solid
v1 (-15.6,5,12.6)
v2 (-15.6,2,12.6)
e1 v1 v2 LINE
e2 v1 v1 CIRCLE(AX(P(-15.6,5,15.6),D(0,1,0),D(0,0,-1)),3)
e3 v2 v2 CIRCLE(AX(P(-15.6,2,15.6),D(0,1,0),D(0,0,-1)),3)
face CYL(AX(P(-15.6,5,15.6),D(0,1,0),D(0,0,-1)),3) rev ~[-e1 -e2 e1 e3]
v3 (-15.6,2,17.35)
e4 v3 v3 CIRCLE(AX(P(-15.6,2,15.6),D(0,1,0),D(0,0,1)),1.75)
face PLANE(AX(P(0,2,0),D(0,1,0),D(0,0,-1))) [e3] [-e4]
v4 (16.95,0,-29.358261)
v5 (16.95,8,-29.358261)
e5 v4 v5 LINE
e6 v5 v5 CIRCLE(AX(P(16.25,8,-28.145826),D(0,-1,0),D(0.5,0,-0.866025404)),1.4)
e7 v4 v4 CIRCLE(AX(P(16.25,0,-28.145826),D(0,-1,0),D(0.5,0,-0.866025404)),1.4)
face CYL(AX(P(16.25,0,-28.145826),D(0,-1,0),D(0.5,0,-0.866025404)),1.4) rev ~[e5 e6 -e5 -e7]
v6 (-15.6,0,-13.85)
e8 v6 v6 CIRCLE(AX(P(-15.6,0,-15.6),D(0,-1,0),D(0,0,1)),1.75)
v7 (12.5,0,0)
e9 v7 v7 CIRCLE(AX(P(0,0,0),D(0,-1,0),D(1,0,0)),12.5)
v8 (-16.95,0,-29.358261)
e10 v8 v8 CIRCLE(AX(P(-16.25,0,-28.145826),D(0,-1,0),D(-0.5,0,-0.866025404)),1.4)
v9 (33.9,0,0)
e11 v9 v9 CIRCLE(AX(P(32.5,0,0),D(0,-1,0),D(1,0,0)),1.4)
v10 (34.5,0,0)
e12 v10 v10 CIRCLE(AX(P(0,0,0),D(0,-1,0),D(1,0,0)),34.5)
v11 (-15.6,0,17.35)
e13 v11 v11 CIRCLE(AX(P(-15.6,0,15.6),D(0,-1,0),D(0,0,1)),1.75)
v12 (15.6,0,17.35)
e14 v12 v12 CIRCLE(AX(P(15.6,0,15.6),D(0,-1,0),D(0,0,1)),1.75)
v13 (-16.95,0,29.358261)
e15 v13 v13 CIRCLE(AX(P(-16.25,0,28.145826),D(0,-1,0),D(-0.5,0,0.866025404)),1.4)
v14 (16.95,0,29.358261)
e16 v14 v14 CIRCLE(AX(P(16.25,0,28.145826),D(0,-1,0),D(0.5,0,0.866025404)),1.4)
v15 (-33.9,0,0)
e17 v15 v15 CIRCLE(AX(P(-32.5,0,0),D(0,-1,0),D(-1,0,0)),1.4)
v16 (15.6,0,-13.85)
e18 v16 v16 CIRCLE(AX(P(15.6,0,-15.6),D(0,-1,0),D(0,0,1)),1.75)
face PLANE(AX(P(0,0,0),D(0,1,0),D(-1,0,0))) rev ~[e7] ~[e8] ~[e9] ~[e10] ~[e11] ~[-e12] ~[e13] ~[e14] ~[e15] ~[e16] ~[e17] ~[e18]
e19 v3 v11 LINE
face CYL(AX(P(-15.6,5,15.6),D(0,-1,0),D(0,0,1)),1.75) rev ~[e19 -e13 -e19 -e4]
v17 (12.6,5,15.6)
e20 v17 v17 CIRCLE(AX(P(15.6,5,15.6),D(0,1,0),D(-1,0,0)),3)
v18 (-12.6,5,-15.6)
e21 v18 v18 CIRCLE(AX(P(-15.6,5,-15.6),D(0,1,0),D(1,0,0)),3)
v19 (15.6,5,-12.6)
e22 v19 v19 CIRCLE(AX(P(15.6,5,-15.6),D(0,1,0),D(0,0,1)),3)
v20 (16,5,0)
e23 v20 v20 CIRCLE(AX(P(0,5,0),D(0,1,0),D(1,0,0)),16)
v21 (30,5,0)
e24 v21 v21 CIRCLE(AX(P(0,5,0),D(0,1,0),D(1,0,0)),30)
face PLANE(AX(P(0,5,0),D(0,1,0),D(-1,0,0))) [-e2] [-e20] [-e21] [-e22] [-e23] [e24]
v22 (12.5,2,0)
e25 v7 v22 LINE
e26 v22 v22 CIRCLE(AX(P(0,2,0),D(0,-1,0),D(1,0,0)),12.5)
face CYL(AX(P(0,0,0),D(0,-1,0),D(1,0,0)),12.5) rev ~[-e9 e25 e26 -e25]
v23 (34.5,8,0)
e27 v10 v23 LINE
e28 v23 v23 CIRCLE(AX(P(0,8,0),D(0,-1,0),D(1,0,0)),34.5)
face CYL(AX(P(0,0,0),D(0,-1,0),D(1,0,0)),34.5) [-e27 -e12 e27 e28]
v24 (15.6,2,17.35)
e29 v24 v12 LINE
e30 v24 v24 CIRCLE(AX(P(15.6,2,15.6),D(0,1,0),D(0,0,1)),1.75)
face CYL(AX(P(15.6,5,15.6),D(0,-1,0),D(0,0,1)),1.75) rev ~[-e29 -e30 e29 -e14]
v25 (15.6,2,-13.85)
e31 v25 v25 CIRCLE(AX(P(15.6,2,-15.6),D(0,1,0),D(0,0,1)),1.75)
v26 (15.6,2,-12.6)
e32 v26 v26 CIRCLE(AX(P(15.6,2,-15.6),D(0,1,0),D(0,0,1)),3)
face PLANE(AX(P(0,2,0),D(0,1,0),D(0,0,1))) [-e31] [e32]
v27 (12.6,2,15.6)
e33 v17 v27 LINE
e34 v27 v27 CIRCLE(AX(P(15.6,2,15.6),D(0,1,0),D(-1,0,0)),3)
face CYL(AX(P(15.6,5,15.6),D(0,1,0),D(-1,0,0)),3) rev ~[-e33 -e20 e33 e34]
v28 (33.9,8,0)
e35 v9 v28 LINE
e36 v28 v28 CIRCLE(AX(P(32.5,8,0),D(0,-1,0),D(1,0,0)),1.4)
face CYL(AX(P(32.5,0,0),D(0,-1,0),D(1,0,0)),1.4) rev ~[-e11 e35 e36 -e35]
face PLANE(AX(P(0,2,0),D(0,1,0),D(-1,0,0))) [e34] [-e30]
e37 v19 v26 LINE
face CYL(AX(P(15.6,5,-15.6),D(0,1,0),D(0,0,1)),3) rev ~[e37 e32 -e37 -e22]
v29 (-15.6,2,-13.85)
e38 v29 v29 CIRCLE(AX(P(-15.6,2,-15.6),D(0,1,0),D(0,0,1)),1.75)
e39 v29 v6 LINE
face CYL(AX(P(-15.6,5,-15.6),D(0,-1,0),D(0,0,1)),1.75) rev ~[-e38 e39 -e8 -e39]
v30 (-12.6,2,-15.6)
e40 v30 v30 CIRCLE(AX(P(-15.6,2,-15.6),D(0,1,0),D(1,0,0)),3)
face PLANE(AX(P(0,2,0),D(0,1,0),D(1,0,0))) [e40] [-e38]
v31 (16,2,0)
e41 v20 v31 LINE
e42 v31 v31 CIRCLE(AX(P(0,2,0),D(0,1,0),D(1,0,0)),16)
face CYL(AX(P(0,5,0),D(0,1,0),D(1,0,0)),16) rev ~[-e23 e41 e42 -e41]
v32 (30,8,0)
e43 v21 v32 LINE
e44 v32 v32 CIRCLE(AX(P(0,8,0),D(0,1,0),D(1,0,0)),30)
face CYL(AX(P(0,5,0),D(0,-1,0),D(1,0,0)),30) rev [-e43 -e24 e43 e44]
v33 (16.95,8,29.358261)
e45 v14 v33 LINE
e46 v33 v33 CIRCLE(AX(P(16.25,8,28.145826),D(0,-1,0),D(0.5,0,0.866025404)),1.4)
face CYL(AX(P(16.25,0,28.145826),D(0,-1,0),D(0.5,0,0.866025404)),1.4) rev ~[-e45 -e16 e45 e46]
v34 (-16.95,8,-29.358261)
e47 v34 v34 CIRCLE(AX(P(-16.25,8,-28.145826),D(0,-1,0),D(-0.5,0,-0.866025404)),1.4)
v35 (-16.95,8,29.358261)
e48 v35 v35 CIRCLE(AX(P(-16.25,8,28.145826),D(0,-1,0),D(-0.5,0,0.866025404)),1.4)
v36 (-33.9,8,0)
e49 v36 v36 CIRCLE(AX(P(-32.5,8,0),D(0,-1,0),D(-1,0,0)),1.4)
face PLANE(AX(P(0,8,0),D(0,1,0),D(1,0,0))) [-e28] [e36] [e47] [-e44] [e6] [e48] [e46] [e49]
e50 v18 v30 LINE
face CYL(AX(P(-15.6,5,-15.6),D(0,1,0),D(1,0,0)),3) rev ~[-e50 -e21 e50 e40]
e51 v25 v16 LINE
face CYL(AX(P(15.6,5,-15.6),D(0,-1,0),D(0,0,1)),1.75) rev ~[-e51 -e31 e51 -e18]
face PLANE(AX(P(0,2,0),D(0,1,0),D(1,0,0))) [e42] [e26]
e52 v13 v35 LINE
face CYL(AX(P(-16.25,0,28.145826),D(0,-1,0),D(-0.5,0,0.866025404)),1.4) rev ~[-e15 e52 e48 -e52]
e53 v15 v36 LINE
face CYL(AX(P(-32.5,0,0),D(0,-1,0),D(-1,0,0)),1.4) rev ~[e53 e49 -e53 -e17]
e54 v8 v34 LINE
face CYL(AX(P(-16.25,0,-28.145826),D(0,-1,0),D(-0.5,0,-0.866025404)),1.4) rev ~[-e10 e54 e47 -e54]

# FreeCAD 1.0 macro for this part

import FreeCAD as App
import Part
import Sketcher
from FreeCAD import Vector
Q = App.Units.Quantity

doc = App.newDocument("Part")
params = doc.addObject("Spreadsheet::Sheet", "Params")
for row, (alias, value) in enumerate([
    ("sketch1_diameter", "70 mm"),
    ("pad1_length", "5 mm"),
    ("sketch2_diameter", "60 mm"),
    ("sketch2_diameter2", "70 mm"),
    ("pad2_length", "3 mm"),
    ("sketch3_diameter", "2.8 mm"),
    ("pocket1_length", "8 mm"),
    ("sketch4_diameter", "25 mm"),
    ("pocket2_length", "5 mm"),
    ("sketch5_diameter", "3.5 mm"),
    ("hole_diameter", "3.5 mm"),
    ("sketch6_diameter", "6 mm"),
    ("sketch6_diameter2", "3.5 mm"),
    ("pocket3_length", "3 mm"),
    ("sketch7_diameter", "32 mm"),
    ("pocket4_length", "3 mm"),
    ("sketch8_diameter", "70 mm"),
    ("sketch8_diameter2", "69 mm"),
    ("pocket5_length", "8 mm"),
], start=1):
    params.set(f"A{row}", alias)
    params.set(f"B{row}", "=" + value)
    params.setAlias(f"B{row}", alias)

body = doc.addObject("PartDesign::Body", "Body")

# Sketch on XZ plane
sketch1 = body.newObject("Sketcher::SketchObject", "Sketch")
sketch1.AttachmentSupport = (doc.getObject("XZ_Plane"), [""])
sketch1.MapMode = "FlatFace"
sketch1.addGeometry(Part.Circle(Vector(0, 0, 0), Vector(0, 0, 1), 35), False)
sketch1.addConstraint(Sketcher.Constraint("Coincident", 0, 3, -1, 1))
sketch1.addConstraint(Sketcher.Constraint("Diameter", 0, Q("70 mm")))
sketch1.setExpression("Constraints[1]", "Params.sketch1_diameter")
pad1 = body.newObject("PartDesign::Pad", "Pad")
pad1.Profile = sketch1
pad1.setExpression("Length", "Params.pad1_length")
pad1.Reversed = True

# Sketch on XZ plane
sketch2 = body.newObject("Sketcher::SketchObject", "Sketch001")
sketch2.AttachmentSupport = (doc.getObject("XZ_Plane"), [""])
sketch2.MapMode = "FlatFace"
sketch2.AttachmentOffset = App.Placement(Vector(0, 0, -5), App.Rotation())
sketch2.addGeometry(Part.Circle(Vector(0, 0, 0), Vector(0, 0, 1), 35), False)
sketch2.addGeometry(Part.Circle(Vector(0, 0, 0), Vector(0, 0, 1), 30), False)
sketch2.addConstraint(Sketcher.Constraint("Coincident", 0, 3, -1, 1))
sketch2.addConstraint(Sketcher.Constraint("Coincident", 1, 3, -1, 1))
sketch2.addConstraint(Sketcher.Constraint("Diameter", 1, Q("60 mm")))
sketch2.addConstraint(Sketcher.Constraint("Diameter", 0, Q("70 mm")))
sketch2.setExpression("Constraints[2]", "Params.sketch2_diameter")
sketch2.setExpression("Constraints[3]", "Params.sketch2_diameter2")
pad2 = body.newObject("PartDesign::Pad", "Pad001")
pad2.Profile = sketch2
pad2.setExpression("Length", "Params.pad2_length")
pad2.Reversed = True

# Sketch on XZ plane
sketch3 = body.newObject("Sketcher::SketchObject", "Sketch002")
sketch3.AttachmentSupport = (doc.getObject("XZ_Plane"), [""])
sketch3.MapMode = "FlatFace"
sketch3.addGeometry(Part.Circle(Vector(32.5, 0, 0), Vector(0, 0, 1), 1.4), False)
sketch3.addConstraint(Sketcher.Constraint("PointOnObject", 0, 3, -1))
sketch3.addConstraint(Sketcher.Constraint("Diameter", 0, Q("2.8 mm")))
sketch3.addConstraint(Sketcher.Constraint("DistanceX", -1, 1, 0, 3, Q("32.5 mm")))
sketch3.setExpression("Constraints[1]", "Params.sketch3_diameter")
pocket1 = body.newObject("PartDesign::Pocket", "Pocket")
pocket1.Profile = sketch3
pocket1.setExpression("Length", "Params.pocket1_length")
doc.recompute()

polarpattern = body.newObject("PartDesign::PolarPattern", "PolarPattern")
polarpattern.Originals = [pocket1]
polarpattern.Axis = (doc.getObject("Y_Axis"), [""])
polarpattern.Angle = 360
polarpattern.Occurrences = 6
body.Tip = polarpattern

# Sketch on XZ plane
sketch4 = body.newObject("Sketcher::SketchObject", "Sketch003")
sketch4.AttachmentSupport = (doc.getObject("XZ_Plane"), [""])
sketch4.MapMode = "FlatFace"
sketch4.addGeometry(Part.Circle(Vector(0, 0, 0), Vector(0, 0, 1), 12), False)
sketch4.addConstraint(Sketcher.Constraint("Coincident", 0, 3, -1, 1))
sketch4.addConstraint(Sketcher.Constraint("Diameter", 0, Q("25 mm")))
sketch4.setExpression("Constraints[1]", "Params.sketch4_diameter")
pocket2 = body.newObject("PartDesign::Pocket", "Pocket001")
pocket2.Profile = sketch4
pocket2.setExpression("Length", "Params.pocket2_length")

# Sketch on XZ plane
sketch5 = body.newObject("Sketcher::SketchObject", "Sketch004")
sketch5.AttachmentSupport = (doc.getObject("XZ_Plane"), [""])
sketch5.MapMode = "FlatFace"
sketch5.AttachmentOffset = App.Placement(Vector(0, 0, -5), App.Rotation())
sketch5.addGeometry(Part.Circle(Vector(-15.6, -15.6, 0), Vector(0, 0, 1), 1.8), False)
sketch5.addGeometry(Part.Circle(Vector(15.6, -15.6, 0), Vector(0, 0, 1), 1.8), False)
sketch5.addGeometry(Part.Circle(Vector(15.6, 15.6, 0), Vector(0, 0, 1), 1.8), False)
sketch5.addGeometry(Part.Circle(Vector(-15.6, 15.6, 0), Vector(0, 0, 1), 1.8), False)
sketch5.addConstraint(Sketcher.Constraint("Equal", 0, 1))
sketch5.addConstraint(Sketcher.Constraint("Equal", 1, 2))
sketch5.addConstraint(Sketcher.Constraint("Equal", 2, 3))
sketch5.addConstraint(Sketcher.Constraint("Symmetric", 0, 3, 2, 3, -1, 1))
sketch5.addConstraint(Sketcher.Constraint("Symmetric", 1, 3, 3, 3, -1, 1))
sketch5.addConstraint(Sketcher.Constraint("Symmetric", 0, 3, 1, 3, -2))
sketch5.addConstraint(Sketcher.Constraint("Diameter", 0, Q("3.5 mm")))
sketch5.addConstraint(Sketcher.Constraint("DistanceX", 0, 3, -1, 1, Q("15.6 mm")))
sketch5.addConstraint(Sketcher.Constraint("DistanceY", 0, 3, -1, 1, Q("15.6 mm")))
sketch5.setExpression("Constraints[6]", "Params.sketch5_diameter")
doc.recompute()
hole = body.newObject("PartDesign::Hole", "Hole")
hole.Profile = sketch5
hole.ThreadType = "None"
hole.setExpression("Diameter", "Params.hole_diameter")
hole.DepthType = "ThroughAll"
hole.Reversed = True

# Sketch on XZ plane
sketch6 = body.newObject("Sketcher::SketchObject", "Sketch005")
sketch6.AttachmentSupport = (doc.getObject("XZ_Plane"), [""])
sketch6.MapMode = "FlatFace"
sketch6.AttachmentOffset = App.Placement(Vector(0, 0, -5), App.Rotation())
sketch6.addGeometry(Part.Circle(Vector(-15.6, -15.6, 0), Vector(0, 0, 1), 3), False)
sketch6.addGeometry(Part.Circle(Vector(-15.6, -15.6, 0), Vector(0, 0, 1), 1.8), False)
sketch6.addConstraint(Sketcher.Constraint("Coincident", 1, 3, 0, 3))
sketch6.addConstraint(Sketcher.Constraint("Diameter", 0, Q("6 mm")))
sketch6.addConstraint(Sketcher.Constraint("Diameter", 1, Q("3.5 mm")))
sketch6.addConstraint(Sketcher.Constraint("DistanceX", 0, 3, -1, 1, Q("15.6 mm")))
sketch6.addConstraint(Sketcher.Constraint("DistanceY", 0, 3, -1, 1, Q("15.6 mm")))
sketch6.setExpression("Constraints[1]", "Params.sketch6_diameter")
sketch6.setExpression("Constraints[2]", "Params.sketch6_diameter2")
pocket3 = body.newObject("PartDesign::Pocket", "Pocket002")
pocket3.Profile = sketch6
pocket3.setExpression("Length", "Params.pocket3_length")
pocket3.Reversed = True
doc.recompute()

polarpattern2 = body.newObject("PartDesign::PolarPattern", "PolarPattern001")
polarpattern2.Originals = [pocket3]
polarpattern2.Axis = (doc.getObject("Y_Axis"), [""])
polarpattern2.Angle = 360
polarpattern2.Occurrences = 4
body.Tip = polarpattern2

# Sketch on XZ plane
sketch7 = body.newObject("Sketcher::SketchObject", "Sketch006")
sketch7.AttachmentSupport = (doc.getObject("XZ_Plane"), [""])
sketch7.MapMode = "FlatFace"
sketch7.AttachmentOffset = App.Placement(Vector(0, 0, -5), App.Rotation())
sketch7.addGeometry(Part.Circle(Vector(0, 0, 0), Vector(0, 0, 1), 16), False)
sketch7.addConstraint(Sketcher.Constraint("Coincident", 0, 3, -1, 1))
sketch7.addConstraint(Sketcher.Constraint("Diameter", 0, Q("32 mm")))
sketch7.setExpression("Constraints[1]", "Params.sketch7_diameter")
pocket4 = body.newObject("PartDesign::Pocket", "Pocket003")
pocket4.Profile = sketch7
pocket4.setExpression("Length", "Params.pocket4_length")
pocket4.Reversed = True

# Sketch on XZ plane
sketch8 = body.newObject("Sketcher::SketchObject", "Sketch007")
sketch8.AttachmentSupport = (doc.getObject("XZ_Plane"), [""])
sketch8.MapMode = "FlatFace"
sketch8.addGeometry(Part.Circle(Vector(0, 0, 0), Vector(0, 0, 1), 35), False)
sketch8.addGeometry(Part.Circle(Vector(0, 0, 0), Vector(0, 0, 1), 34), False)
sketch8.addConstraint(Sketcher.Constraint("Coincident", 0, 3, -1, 1))
sketch8.addConstraint(Sketcher.Constraint("Coincident", 1, 3, -1, 1))
sketch8.addConstraint(Sketcher.Constraint("Diameter", 0, Q("70 mm")))
sketch8.addConstraint(Sketcher.Constraint("Diameter", 1, Q("69 mm")))
sketch8.setExpression("Constraints[2]", "Params.sketch8_diameter")
sketch8.setExpression("Constraints[3]", "Params.sketch8_diameter2")
pocket5 = body.newObject("PartDesign::Pocket", "Pocket004")
pocket5.Profile = sketch8
pocket5.setExpression("Length", "Params.pocket5_length")

doc.recompute()
